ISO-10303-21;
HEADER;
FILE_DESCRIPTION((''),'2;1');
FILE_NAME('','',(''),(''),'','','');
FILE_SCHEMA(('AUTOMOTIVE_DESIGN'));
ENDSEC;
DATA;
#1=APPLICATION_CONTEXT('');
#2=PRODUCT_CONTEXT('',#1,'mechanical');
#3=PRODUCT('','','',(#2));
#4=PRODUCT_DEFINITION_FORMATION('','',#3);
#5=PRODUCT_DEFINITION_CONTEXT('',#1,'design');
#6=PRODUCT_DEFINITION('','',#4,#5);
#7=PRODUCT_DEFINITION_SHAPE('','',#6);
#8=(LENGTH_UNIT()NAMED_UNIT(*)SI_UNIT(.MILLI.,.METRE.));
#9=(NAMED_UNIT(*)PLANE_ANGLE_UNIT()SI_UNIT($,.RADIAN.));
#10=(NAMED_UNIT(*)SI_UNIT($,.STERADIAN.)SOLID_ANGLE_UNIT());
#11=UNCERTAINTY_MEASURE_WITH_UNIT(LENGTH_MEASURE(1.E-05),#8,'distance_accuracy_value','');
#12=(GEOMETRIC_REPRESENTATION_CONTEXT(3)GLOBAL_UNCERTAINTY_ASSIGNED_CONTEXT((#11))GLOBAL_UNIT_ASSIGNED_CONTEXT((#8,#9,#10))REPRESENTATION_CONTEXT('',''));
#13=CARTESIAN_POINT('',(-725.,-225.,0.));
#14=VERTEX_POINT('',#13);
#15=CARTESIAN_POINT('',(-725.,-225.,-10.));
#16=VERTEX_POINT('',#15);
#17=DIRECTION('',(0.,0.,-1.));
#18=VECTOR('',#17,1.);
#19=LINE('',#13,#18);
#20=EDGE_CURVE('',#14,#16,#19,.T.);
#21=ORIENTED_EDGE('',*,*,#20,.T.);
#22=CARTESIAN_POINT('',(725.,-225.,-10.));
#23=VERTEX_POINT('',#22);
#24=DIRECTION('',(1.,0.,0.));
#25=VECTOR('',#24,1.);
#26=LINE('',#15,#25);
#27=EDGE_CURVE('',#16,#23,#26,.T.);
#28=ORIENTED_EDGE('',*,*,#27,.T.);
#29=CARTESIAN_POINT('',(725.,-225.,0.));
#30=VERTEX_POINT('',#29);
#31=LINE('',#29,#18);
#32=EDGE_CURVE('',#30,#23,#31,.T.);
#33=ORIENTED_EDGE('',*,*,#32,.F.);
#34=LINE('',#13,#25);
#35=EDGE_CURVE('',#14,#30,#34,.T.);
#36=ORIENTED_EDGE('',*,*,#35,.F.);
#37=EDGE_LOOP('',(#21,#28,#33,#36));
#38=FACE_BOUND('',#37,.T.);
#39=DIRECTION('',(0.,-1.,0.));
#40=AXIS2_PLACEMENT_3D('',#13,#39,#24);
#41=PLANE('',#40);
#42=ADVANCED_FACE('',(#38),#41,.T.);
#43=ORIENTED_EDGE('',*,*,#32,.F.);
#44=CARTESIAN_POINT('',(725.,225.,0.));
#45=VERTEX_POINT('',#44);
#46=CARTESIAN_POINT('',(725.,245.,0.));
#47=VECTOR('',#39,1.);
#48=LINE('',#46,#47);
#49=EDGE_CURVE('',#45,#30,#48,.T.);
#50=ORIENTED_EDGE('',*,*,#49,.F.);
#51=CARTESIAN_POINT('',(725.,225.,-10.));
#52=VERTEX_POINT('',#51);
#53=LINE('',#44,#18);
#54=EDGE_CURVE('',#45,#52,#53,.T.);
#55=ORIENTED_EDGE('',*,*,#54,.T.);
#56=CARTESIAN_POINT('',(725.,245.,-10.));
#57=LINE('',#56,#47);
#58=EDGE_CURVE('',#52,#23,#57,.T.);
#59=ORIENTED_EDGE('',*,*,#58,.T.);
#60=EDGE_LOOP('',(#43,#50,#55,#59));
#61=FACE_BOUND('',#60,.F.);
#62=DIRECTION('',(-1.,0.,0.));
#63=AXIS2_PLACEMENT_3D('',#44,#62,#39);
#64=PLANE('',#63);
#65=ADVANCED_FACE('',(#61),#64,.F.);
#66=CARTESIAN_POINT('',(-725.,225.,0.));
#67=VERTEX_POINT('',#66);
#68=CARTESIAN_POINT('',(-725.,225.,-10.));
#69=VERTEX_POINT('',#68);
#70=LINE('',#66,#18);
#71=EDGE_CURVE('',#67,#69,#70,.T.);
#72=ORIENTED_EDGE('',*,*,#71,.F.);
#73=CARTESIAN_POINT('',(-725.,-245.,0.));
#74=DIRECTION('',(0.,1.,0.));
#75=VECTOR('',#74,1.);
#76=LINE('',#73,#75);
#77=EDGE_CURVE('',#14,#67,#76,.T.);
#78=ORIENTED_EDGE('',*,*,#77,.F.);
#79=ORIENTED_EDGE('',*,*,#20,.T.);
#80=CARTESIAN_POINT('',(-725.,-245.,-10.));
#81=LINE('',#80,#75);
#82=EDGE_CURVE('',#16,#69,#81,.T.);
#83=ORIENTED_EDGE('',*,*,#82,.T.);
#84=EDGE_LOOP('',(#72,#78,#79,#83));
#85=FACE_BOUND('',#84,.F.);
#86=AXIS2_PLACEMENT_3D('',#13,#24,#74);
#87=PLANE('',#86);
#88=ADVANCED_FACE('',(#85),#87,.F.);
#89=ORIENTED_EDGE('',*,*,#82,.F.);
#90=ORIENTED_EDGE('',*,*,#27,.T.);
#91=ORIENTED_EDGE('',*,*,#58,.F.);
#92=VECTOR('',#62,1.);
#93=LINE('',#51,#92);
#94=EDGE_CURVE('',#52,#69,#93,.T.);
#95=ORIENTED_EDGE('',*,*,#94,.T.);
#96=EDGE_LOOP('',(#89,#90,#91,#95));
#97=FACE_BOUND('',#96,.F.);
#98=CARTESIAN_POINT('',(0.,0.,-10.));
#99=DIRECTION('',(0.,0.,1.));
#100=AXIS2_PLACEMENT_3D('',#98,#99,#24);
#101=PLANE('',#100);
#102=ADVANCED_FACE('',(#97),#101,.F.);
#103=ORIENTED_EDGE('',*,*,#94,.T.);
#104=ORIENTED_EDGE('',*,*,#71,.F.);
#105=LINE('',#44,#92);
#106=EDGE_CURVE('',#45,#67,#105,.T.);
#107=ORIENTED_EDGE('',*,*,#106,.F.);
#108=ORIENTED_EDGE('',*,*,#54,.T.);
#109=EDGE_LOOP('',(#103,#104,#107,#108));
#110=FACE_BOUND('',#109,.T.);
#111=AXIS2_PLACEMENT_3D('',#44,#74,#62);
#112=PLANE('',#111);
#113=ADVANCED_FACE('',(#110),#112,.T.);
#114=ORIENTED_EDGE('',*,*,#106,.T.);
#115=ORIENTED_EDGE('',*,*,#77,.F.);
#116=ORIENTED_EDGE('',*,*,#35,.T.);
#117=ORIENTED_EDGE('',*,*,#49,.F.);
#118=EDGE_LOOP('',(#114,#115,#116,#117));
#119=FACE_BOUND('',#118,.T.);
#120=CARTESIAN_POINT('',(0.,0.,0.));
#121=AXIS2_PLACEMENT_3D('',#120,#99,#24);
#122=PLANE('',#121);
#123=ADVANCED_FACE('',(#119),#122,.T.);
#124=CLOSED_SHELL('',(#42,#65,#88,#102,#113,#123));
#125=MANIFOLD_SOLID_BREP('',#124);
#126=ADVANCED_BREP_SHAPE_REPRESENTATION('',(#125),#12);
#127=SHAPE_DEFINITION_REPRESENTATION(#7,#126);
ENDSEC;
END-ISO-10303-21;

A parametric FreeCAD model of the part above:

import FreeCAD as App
import Part
import Sketcher
Q = App.Units.Quantity


def add_polygon(sketch, points):
    """Adds a closed chain of lines whose ends are joined by coincident constraints."""
    first, n = sketch.GeometryCount, len(points)
    for a, b in zip(points, points[1:] + points[:1]):
        sketch.addGeometry(Part.LineSegment(App.Vector(*a, 0), App.Vector(*b, 0)), False)
    for i in range(n):
        sketch.addConstraint(Sketcher.Constraint("Coincident", first + i, 2, first + (i + 1) % n, 1))

doc = App.newDocument("Part")
body = doc.addObject("PartDesign::Body", "Body")

sketch1 = doc.addObject("Sketcher::SketchObject", "Sketch")
body.addObject(sketch1)
sketch1.AttachmentSupport = (doc.XY_Plane, [""])
sketch1.MapMode = "FlatFace"
add_polygon(sketch1, [(725, 225), (-725, 225), (-725, -225), (725, -225)])
sketch1.addConstraint([
    Sketcher.Constraint("Horizontal", 0),
    Sketcher.Constraint("Vertical", 1),
    Sketcher.Constraint("Horizontal", 2),
    Sketcher.Constraint("Vertical", 3),
    Sketcher.Constraint("Symmetric", 0, 2, 2, 2, -1, 1),
    Sketcher.Constraint("DistanceX", 0, 2, 0, 1, Q("1450 mm")),
    Sketcher.Constraint("DistanceY", 1, 2, 1, 1, Q("450 mm")),
])
pad1 = doc.addObject("PartDesign::Pad", "Pad")
body.addObject(pad1)
pad1.Profile = sketch1
pad1.Length = 10
pad1.Reversed = True

doc.recompute()
